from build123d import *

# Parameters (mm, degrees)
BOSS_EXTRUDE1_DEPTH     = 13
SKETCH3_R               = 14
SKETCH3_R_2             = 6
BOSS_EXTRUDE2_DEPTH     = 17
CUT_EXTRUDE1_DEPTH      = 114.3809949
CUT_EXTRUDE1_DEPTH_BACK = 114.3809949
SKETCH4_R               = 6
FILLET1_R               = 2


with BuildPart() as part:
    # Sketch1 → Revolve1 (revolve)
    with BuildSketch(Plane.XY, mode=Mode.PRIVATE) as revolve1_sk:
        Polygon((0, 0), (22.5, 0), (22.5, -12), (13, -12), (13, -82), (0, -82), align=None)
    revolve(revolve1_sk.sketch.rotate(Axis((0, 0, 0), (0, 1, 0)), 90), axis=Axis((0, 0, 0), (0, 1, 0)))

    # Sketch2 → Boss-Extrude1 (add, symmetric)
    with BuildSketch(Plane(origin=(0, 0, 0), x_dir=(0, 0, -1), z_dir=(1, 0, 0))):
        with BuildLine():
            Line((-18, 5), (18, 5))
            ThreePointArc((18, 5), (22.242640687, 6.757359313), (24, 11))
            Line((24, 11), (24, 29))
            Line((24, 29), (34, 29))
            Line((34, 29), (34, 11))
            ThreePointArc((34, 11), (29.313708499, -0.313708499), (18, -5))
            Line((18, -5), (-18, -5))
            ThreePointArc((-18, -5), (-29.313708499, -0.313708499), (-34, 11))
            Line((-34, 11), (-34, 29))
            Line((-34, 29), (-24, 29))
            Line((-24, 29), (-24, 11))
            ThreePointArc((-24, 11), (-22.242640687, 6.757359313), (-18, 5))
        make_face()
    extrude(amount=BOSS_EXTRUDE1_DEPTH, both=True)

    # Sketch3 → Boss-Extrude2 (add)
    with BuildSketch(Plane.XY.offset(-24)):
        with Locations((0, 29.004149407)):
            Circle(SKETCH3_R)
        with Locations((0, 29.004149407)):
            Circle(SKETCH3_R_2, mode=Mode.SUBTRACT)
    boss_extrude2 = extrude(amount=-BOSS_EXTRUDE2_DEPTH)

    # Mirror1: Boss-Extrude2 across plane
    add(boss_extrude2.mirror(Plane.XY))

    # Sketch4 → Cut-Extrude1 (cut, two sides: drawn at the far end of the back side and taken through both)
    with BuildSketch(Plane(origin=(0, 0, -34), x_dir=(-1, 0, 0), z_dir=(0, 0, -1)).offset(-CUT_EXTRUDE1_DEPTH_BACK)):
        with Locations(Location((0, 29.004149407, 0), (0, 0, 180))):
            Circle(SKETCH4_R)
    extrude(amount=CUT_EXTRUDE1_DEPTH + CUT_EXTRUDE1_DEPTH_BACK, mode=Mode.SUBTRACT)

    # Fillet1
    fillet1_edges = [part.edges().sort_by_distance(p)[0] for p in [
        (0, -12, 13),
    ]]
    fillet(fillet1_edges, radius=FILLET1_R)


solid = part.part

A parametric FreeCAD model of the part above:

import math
import FreeCAD as App
import Part
import Sketcher
Q = App.Units.Quantity


def edges_at(feature, points):
    """Names of the edges that pass closest to the given points."""
    edges = feature.Shape.Edges
    near = lambda p: min(range(len(edges)), key=lambda i: edges[i].distToShape(Part.Vertex(*p))[0])
    return sorted({f"Edge{near(p) + 1}" for p in points})


def add_polygon(sketch, points):
    """Adds a closed chain of lines whose ends are joined by coincident constraints."""
    first, n = sketch.GeometryCount, len(points)
    for a, b in zip(points, points[1:] + points[:1]):
        sketch.addGeometry(Part.LineSegment(App.Vector(*a, 0), App.Vector(*b, 0)), False)
    for i in range(n):
        sketch.addConstraint(Sketcher.Constraint("Coincident", first + i, 2, first + (i + 1) % n, 1))

doc = App.newDocument("Part")
body = doc.addObject("PartDesign::Body", "Body")

sketch1 = body.newObject("Sketcher::SketchObject", "Sketch")
sketch1.AttachmentSupport = (doc.getObject("XY_Plane"), [""])
sketch1.MapMode = "FlatFace"
add_polygon(sketch1, [(22, 0), (0, 0), (0, -82), (13, -82), (13, -12), (22, -12)])
sketch1.addConstraint([
    Sketcher.Constraint("Horizontal", 0),
    Sketcher.Constraint("Vertical", 1),
    Sketcher.Constraint("Horizontal", 2),
    Sketcher.Constraint("Vertical", 3),
    Sketcher.Constraint("Horizontal", 4),
    Sketcher.Constraint("Vertical", 5),
    Sketcher.Constraint("Coincident", 0, 2, -1, 1),
    Sketcher.Constraint("DistanceX", 2, 1, 2, 2, Q("13 mm")),
    Sketcher.Constraint("DistanceY", 1, 2, 1, 1, Q("82 mm")),
    Sketcher.Constraint("DistanceY", 3, 1, 3, 2, Q("70 mm")),
    Sketcher.Constraint("DistanceX", 0, 2, 0, 1, Q("22.5 mm")),
])
revolution = body.newObject("PartDesign::Revolution", "Revolution")
revolution.Profile = sketch1
revolution.ReferenceAxis = (sketch1, ["V_Axis"])
revolution.Angle = 360

sketch2 = body.newObject("Sketcher::SketchObject", "Sketch001")
sketch2.AttachmentSupport = (doc.getObject("YZ_Plane"), [""])
sketch2.MapMode = "FlatFace"
sketch2.addGeometry([
    Part.LineSegment(App.Vector(5, -18, 0), App.Vector(5, 18, 0)),
    Part.ArcOfCircle(Part.Circle(App.Vector(11, 18, 0), App.Vector(0, 0, 1), 6), math.radians(90), math.radians(180)),
    Part.LineSegment(App.Vector(11, 24, 0), App.Vector(29, 24, 0)),
    Part.LineSegment(App.Vector(29, 24, 0), App.Vector(29, 34, 0)),
    Part.LineSegment(App.Vector(29, 34, 0), App.Vector(11, 34, 0)),
    Part.ArcOfCircle(Part.Circle(App.Vector(11, 18, 0), App.Vector(0, 0, 1), 16), math.radians(90), math.radians(180)),
    Part.LineSegment(App.Vector(-5, 18, 0), App.Vector(-5, -18, 0)),
    Part.ArcOfCircle(Part.Circle(App.Vector(11, -18, 0), App.Vector(0, 0, 1), 16), math.radians(180), math.radians(270)),
    Part.LineSegment(App.Vector(11, -34, 0), App.Vector(29, -34, 0)),
    Part.LineSegment(App.Vector(29, -34, 0), App.Vector(29, -24, 0)),
    Part.LineSegment(App.Vector(29, -24, 0), App.Vector(11, -24, 0)),
    Part.ArcOfCircle(Part.Circle(App.Vector(11, -18, 0), App.Vector(0, 0, 1), 6), math.radians(180), math.radians(270)),
], False)
sketch2.addConstraint([
    Sketcher.Constraint("Tangent", 0, 2, 1, 2),
    Sketcher.Constraint("Tangent", 1, 1, 2, 1),
    Sketcher.Constraint("Coincident", 2, 2, 3, 1),
    Sketcher.Constraint("Coincident", 3, 2, 4, 1),
    Sketcher.Constraint("Tangent", 4, 2, 5, 1),
    Sketcher.Constraint("Tangent", 5, 2, 6, 1),
    Sketcher.Constraint("Tangent", 6, 2, 7, 1),
    Sketcher.Constraint("Tangent", 7, 2, 8, 1),
    Sketcher.Constraint("Coincident", 8, 2, 9, 1),
    Sketcher.Constraint("Coincident", 9, 2, 10, 1),
    Sketcher.Constraint("Tangent", 10, 2, 11, 2),
    Sketcher.Constraint("Tangent", 11, 1, 0, 1),
    Sketcher.Constraint("Vertical", 0),
    Sketcher.Constraint("Horizontal", 2),
    Sketcher.Constraint("Vertical", 3),
    Sketcher.Constraint("Horizontal", 4),
    Sketcher.Constraint("Vertical", 6),
    Sketcher.Constraint("Horizontal", 8),
    Sketcher.Constraint("Vertical", 9),
    Sketcher.Constraint("Horizontal", 10),
    Sketcher.Constraint("Coincident", 5, 3, 1, 3),
    Sketcher.Constraint("Coincident", 11, 3, 7, 3),
    Sketcher.Constraint("Equal", 5, 7),
    Sketcher.Constraint("Symmetric", 0, 2, 6, 2, -1, 1),
    Sketcher.Constraint("Vertical", 3, 2, 8, 2),
    Sketcher.Constraint("Radius", 1, Q("6 mm")),
    Sketcher.Constraint("Radius", 5, Q("16 mm")),
    Sketcher.Constraint("DistanceX", 2, 1, 2, 2, Q("18 mm")),
    Sketcher.Constraint("DistanceY", 0, 1, 0, 2, Q("36 mm")),
])
pad1 = body.newObject("PartDesign::Pad", "Pad")
pad1.Profile = sketch2
pad1.Length = 26
pad1.Midplane = True

sketch3 = body.newObject("Sketcher::SketchObject", "Sketch002")
sketch3.AttachmentSupport = (doc.getObject("XY_Plane"), [""])
sketch3.MapMode = "FlatFace"
sketch3.AttachmentOffset = App.Placement(App.Vector(0, 0, -24), App.Rotation())
sketch3.addGeometry([
    Part.Circle(App.Vector(0, 29, 0), App.Vector(0, 0, 1), 14),
    Part.Circle(App.Vector(0, 29, 0), App.Vector(0, 0, 1), 6),
], False)
sketch3.addConstraint([
    Sketcher.Constraint("Coincident", 1, 3, 0, 3),
    Sketcher.Constraint("PointOnObject", 0, 3, -2),
    Sketcher.Constraint("Diameter", 0, Q("28 mm")),
    Sketcher.Constraint("Diameter", 1, Q("12 mm")),
    Sketcher.Constraint("DistanceY", -1, 1, 0, 3, Q("29.004149 mm")),
])
pad2 = body.newObject("PartDesign::Pad", "Pad001")
pad2.Profile = sketch3
pad2.Length = 17
pad2.Reversed = True
doc.recompute()

mirrored = body.newObject("PartDesign::Mirrored", "Mirrored")
mirrored.Originals = [pad2]
mirrored.MirrorPlane = (doc.getObject("XY_Plane"), [""])
body.Tip = mirrored

sketch4 = body.newObject("Sketcher::SketchObject", "Sketch003")
sketch4.AttachmentSupport = (doc.getObject("XY_Plane"), [""])
sketch4.MapMode = "FlatFace"
sketch4.AttachmentOffset = App.Placement(App.Vector(0, 0, -34), App.Rotation())
sketch4.addGeometry(Part.Circle(App.Vector(0, 29, 0), App.Vector(0, 0, 1), 6), False)
sketch4.addConstraint([
    Sketcher.Constraint("PointOnObject", 0, 3, -2),
    Sketcher.Constraint("Diameter", 0, Q("12 mm")),
    Sketcher.Constraint("DistanceY", -1, 1, 0, 3, Q("29.004149 mm")),
])
pocket1 = body.newObject("PartDesign::Pocket", "Pocket")
pocket1.Profile = sketch4
pocket1.Type = "ThroughAll"
pocket1.Midplane = True
doc.recompute()

fillet = body.newObject("PartDesign::Fillet", "Fillet")
fillet.Base = (pocket1, edges_at(pocket1, [(0, -12, 13)]))
fillet.Radius = 2

doc.recompute()
